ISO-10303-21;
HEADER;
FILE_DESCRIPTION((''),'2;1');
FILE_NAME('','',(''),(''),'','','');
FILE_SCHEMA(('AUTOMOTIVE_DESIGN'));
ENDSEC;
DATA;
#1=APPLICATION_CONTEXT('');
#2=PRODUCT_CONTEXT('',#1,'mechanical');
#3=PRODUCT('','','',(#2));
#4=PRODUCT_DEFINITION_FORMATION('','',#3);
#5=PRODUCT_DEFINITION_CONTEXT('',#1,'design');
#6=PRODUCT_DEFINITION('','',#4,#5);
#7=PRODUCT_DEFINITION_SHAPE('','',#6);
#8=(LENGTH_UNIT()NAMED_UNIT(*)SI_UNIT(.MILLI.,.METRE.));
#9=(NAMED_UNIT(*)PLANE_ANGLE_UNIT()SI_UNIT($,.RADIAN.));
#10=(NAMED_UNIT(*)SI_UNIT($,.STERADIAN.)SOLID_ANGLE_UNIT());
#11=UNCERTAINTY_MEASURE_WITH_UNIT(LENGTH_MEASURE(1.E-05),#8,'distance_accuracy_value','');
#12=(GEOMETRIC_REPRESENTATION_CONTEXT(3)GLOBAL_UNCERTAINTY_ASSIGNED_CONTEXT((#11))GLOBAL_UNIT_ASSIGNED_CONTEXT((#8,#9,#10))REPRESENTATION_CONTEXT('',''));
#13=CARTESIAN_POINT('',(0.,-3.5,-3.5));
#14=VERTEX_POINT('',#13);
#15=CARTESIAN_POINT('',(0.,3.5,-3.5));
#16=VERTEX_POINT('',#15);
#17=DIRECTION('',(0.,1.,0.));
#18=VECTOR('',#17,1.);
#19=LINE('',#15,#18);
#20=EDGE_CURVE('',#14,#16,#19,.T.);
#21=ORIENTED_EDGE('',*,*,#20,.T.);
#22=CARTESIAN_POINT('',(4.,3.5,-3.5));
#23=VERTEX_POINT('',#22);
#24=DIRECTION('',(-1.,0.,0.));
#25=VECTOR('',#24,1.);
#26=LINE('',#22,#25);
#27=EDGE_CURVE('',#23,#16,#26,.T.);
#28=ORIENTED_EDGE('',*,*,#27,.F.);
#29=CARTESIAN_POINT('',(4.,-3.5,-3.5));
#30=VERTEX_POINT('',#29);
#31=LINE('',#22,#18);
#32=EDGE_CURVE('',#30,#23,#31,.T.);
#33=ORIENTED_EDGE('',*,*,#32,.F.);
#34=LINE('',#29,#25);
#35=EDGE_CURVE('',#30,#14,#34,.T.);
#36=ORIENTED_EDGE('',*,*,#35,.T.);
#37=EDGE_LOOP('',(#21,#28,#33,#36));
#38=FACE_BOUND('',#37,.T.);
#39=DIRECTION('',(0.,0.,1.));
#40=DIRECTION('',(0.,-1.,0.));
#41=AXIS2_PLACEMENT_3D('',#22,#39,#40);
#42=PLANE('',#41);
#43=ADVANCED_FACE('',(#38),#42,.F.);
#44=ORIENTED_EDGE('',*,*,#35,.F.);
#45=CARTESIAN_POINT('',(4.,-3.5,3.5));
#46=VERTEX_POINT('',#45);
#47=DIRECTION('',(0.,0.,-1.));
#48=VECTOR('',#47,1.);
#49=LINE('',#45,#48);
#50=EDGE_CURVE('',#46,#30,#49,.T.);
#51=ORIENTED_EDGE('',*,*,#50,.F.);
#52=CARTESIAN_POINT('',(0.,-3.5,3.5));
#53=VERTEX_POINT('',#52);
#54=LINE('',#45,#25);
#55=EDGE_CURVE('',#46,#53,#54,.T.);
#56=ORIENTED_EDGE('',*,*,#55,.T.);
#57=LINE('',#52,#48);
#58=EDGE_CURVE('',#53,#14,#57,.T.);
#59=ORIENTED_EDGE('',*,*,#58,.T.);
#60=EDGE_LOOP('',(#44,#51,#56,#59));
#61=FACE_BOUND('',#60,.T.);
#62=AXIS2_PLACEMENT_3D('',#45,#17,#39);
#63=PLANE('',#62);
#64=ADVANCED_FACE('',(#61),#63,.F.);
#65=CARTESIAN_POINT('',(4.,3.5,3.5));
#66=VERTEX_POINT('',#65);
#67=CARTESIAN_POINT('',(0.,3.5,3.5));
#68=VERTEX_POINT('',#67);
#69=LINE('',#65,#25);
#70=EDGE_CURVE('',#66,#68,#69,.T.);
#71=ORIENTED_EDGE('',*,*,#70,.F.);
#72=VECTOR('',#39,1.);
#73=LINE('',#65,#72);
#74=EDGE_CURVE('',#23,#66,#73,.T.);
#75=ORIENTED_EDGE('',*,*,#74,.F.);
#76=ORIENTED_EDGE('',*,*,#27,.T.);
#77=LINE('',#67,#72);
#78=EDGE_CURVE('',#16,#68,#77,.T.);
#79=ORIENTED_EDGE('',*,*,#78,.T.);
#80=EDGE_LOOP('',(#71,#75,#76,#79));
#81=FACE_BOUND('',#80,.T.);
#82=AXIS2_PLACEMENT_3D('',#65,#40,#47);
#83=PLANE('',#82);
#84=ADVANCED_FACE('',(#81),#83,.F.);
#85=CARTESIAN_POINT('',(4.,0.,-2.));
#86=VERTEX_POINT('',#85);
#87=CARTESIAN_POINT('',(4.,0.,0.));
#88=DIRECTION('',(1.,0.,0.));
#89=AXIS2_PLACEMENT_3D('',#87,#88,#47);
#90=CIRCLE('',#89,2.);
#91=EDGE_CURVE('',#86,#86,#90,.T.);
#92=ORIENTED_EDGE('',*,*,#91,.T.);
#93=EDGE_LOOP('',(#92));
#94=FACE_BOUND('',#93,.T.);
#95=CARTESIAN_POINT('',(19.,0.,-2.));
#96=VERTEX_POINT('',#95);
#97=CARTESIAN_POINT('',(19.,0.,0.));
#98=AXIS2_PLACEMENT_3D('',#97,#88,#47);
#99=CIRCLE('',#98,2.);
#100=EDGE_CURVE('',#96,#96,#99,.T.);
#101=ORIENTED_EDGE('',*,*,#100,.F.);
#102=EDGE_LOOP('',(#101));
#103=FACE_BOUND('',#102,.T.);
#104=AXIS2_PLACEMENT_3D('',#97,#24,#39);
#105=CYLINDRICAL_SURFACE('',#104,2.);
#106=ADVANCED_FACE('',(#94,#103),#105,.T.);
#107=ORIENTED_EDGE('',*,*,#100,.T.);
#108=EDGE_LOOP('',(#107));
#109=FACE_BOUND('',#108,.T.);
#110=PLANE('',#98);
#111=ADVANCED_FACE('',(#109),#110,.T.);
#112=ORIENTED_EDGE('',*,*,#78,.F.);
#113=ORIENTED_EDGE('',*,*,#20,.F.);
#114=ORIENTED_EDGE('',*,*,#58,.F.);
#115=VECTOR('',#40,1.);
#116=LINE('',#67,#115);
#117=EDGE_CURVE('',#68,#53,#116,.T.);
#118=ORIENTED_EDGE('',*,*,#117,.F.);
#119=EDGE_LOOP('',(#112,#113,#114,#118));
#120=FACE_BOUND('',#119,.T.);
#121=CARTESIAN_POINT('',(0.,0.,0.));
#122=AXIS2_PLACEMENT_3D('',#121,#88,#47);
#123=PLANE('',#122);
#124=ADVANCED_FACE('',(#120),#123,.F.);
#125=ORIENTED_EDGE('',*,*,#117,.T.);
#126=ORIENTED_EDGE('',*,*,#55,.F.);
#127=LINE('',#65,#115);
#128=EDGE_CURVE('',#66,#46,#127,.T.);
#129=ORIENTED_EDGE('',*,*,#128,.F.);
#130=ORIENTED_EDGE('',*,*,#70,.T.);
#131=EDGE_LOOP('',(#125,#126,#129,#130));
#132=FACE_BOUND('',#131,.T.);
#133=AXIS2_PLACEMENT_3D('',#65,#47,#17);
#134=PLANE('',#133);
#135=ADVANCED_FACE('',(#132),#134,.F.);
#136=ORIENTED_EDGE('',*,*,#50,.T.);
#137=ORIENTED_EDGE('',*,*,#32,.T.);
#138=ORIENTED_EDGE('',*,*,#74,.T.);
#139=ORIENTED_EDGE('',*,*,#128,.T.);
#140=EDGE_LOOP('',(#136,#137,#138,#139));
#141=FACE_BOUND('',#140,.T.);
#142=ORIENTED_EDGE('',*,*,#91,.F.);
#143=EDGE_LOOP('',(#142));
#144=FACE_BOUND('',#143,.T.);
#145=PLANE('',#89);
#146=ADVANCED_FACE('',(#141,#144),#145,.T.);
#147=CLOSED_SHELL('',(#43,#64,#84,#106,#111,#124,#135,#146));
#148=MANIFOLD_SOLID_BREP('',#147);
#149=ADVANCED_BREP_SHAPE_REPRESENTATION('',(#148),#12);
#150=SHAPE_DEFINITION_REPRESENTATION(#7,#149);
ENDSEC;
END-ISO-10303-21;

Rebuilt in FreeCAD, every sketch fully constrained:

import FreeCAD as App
import Part
import Sketcher
from FreeCAD import Vector
Q = App.Units.Quantity

doc = App.newDocument("Part")
body = doc.addObject("PartDesign::Body", "Body")

# Sketch on YZ plane
sketch1 = body.newObject("Sketcher::SketchObject", "Sketch")
sketch1.AttachmentSupport = (doc.getObject("YZ_Plane"), [""])
sketch1.MapMode = "FlatFace"
sketch1.addGeometry([
    Part.LineSegment(Vector(4, 4, 0), Vector(-4, 4, 0)),
    Part.LineSegment(Vector(-4, 4, 0), Vector(-4, -4, 0)),
    Part.LineSegment(Vector(-4, -4, 0), Vector(4, -4, 0)),
    Part.LineSegment(Vector(4, -4, 0), Vector(4, 4, 0)),
], False)
sketch1.addConstraint([
    Sketcher.Constraint("Coincident", 0, 2, 1, 1),
    Sketcher.Constraint("Coincident", 1, 2, 2, 1),
    Sketcher.Constraint("Coincident", 2, 2, 3, 1),
    Sketcher.Constraint("Coincident", 3, 2, 0, 1),
    Sketcher.Constraint("Horizontal", 0),
    Sketcher.Constraint("Vertical", 1),
    Sketcher.Constraint("Horizontal", 2),
    Sketcher.Constraint("Vertical", 3),
    Sketcher.Constraint("Symmetric", 0, 2, 2, 2, -1, 1),
    Sketcher.Constraint("Equal", 2, 1),
    Sketcher.Constraint("DistanceX", 0, 2, 0, 1, Q("7 mm")),
])
pad1 = body.newObject("PartDesign::Pad", "Pad")
pad1.Profile = sketch1
pad1.Length = 4

# Sketch on YZ plane
sketch2 = body.newObject("Sketcher::SketchObject", "Sketch001")
sketch2.AttachmentSupport = (doc.getObject("YZ_Plane"), [""])
sketch2.MapMode = "FlatFace"
sketch2.AttachmentOffset = App.Placement(Vector(0, 0, 4), App.Rotation())
sketch2.addGeometry(Part.Circle(Vector(0, 0, 0), Vector(0, 0, 1), 2), False)
sketch2.addConstraint([
    Sketcher.Constraint("Coincident", 0, 3, -1, 1),
    Sketcher.Constraint("Diameter", 0, Q("4 mm")),
])
pad2 = body.newObject("PartDesign::Pad", "Pad001")
pad2.Profile = sketch2
pad2.Length = 15

doc.recompute()
